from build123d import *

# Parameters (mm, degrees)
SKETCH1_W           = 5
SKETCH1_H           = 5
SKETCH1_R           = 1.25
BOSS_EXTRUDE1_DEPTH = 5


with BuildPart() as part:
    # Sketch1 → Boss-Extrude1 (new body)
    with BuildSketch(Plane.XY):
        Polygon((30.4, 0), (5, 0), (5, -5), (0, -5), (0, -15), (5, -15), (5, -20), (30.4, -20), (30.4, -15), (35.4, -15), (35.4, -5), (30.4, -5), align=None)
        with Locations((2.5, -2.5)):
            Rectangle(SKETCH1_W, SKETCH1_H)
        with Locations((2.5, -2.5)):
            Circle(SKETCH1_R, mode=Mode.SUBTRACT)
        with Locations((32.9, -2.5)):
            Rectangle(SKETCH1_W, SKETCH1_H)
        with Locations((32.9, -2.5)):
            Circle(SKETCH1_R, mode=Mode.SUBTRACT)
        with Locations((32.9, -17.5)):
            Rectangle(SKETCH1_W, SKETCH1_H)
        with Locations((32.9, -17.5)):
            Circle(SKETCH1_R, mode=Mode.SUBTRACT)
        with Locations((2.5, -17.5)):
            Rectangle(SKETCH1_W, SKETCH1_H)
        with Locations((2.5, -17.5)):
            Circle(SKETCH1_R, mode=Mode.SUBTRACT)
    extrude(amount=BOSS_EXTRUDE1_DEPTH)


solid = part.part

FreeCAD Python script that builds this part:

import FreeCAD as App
import Part
import Sketcher

V = App.Vector
Q = App.Units.Quantity


def add_polygon(sketch, points):
    """Adds a closed chain of lines whose ends are joined by coincident constraints."""
    first, n = sketch.GeometryCount, len(points)
    for a, b in zip(points, points[1:] + points[:1]):
        sketch.addGeometry(Part.LineSegment(App.Vector(*a, 0), App.Vector(*b, 0)), False)
    for i in range(n):
        sketch.addConstraint(Sketcher.Constraint("Coincident", first + i, 2, first + (i + 1) % n, 1))

doc = App.newDocument("Part")
body = doc.addObject("PartDesign::Body", "Body")

# Sketch on XY plane
sketch1 = body.newObject("Sketcher::SketchObject", "Sketch")
sketch1.AttachmentSupport = (doc.getObject("XY_Plane"), [""])
sketch1.MapMode = "FlatFace"
add_polygon(sketch1, [(0, 0), (0, -20), (35.4, -20), (35.4, 0)])  # lines 0-3
sketch1.addGeometry(Part.Circle(V(2.5, -17.5, 0), V(0, 0, 1), 1.25), False)  # 4
sketch1.addGeometry(Part.Circle(V(32.9, -17.5, 0), V(0, 0, 1), 1.25), False)  # 5
sketch1.addGeometry(Part.Circle(V(2.5, -2.5, 0), V(0, 0, 1), 1.25), False)  # 6
sketch1.addGeometry(Part.Circle(V(32.9, -2.5, 0), V(0, 0, 1), 1.25), False)  # 7
sketch1.addConstraint(Sketcher.Constraint("Vertical", 0))
sketch1.addConstraint(Sketcher.Constraint("Horizontal", 1))
sketch1.addConstraint(Sketcher.Constraint("Vertical", 2))
sketch1.addConstraint(Sketcher.Constraint("Horizontal", 3))
sketch1.addConstraint(Sketcher.Constraint("Coincident", 3, 2, -1, 1))
sketch1.addConstraint(Sketcher.Constraint("Equal", 4, 5))
sketch1.addConstraint(Sketcher.Constraint("Equal", 5, 6))
sketch1.addConstraint(Sketcher.Constraint("Equal", 6, 7))
sketch1.addConstraint(Sketcher.Constraint("Horizontal", 4, 3, 5, 3))
sketch1.addConstraint(Sketcher.Constraint("Horizontal", 6, 3, 7, 3))
sketch1.addConstraint(Sketcher.Constraint("Vertical", 4, 3, 6, 3))
sketch1.addConstraint(Sketcher.Constraint("Vertical", 5, 3, 7, 3))
sketch1.addConstraint(Sketcher.Constraint("Diameter", 4, Q("2.5 mm")))
sketch1.addConstraint(Sketcher.Constraint("DistanceY", 0, 2, 0, 1, Q("20 mm")))
sketch1.addConstraint(Sketcher.Constraint("DistanceX", 1, 1, 1, 2, Q("35.4 mm")))
sketch1.addConstraint(Sketcher.Constraint("DistanceY", 4, 3, 6, 3, Q("15 mm")))
sketch1.addConstraint(Sketcher.Constraint("DistanceX", -1, 1, 4, 3, Q("2.5 mm")))
sketch1.addConstraint(Sketcher.Constraint("DistanceY", 4, 3, -1, 1, Q("17.5 mm")))
sketch1.addConstraint(Sketcher.Constraint("DistanceX", -1, 1, 5, 3, Q("32.9 mm")))
pad1 = body.newObject("PartDesign::Pad", "Pad")
pad1.Profile = sketch1
pad1.Length = 5

doc.recompute()
